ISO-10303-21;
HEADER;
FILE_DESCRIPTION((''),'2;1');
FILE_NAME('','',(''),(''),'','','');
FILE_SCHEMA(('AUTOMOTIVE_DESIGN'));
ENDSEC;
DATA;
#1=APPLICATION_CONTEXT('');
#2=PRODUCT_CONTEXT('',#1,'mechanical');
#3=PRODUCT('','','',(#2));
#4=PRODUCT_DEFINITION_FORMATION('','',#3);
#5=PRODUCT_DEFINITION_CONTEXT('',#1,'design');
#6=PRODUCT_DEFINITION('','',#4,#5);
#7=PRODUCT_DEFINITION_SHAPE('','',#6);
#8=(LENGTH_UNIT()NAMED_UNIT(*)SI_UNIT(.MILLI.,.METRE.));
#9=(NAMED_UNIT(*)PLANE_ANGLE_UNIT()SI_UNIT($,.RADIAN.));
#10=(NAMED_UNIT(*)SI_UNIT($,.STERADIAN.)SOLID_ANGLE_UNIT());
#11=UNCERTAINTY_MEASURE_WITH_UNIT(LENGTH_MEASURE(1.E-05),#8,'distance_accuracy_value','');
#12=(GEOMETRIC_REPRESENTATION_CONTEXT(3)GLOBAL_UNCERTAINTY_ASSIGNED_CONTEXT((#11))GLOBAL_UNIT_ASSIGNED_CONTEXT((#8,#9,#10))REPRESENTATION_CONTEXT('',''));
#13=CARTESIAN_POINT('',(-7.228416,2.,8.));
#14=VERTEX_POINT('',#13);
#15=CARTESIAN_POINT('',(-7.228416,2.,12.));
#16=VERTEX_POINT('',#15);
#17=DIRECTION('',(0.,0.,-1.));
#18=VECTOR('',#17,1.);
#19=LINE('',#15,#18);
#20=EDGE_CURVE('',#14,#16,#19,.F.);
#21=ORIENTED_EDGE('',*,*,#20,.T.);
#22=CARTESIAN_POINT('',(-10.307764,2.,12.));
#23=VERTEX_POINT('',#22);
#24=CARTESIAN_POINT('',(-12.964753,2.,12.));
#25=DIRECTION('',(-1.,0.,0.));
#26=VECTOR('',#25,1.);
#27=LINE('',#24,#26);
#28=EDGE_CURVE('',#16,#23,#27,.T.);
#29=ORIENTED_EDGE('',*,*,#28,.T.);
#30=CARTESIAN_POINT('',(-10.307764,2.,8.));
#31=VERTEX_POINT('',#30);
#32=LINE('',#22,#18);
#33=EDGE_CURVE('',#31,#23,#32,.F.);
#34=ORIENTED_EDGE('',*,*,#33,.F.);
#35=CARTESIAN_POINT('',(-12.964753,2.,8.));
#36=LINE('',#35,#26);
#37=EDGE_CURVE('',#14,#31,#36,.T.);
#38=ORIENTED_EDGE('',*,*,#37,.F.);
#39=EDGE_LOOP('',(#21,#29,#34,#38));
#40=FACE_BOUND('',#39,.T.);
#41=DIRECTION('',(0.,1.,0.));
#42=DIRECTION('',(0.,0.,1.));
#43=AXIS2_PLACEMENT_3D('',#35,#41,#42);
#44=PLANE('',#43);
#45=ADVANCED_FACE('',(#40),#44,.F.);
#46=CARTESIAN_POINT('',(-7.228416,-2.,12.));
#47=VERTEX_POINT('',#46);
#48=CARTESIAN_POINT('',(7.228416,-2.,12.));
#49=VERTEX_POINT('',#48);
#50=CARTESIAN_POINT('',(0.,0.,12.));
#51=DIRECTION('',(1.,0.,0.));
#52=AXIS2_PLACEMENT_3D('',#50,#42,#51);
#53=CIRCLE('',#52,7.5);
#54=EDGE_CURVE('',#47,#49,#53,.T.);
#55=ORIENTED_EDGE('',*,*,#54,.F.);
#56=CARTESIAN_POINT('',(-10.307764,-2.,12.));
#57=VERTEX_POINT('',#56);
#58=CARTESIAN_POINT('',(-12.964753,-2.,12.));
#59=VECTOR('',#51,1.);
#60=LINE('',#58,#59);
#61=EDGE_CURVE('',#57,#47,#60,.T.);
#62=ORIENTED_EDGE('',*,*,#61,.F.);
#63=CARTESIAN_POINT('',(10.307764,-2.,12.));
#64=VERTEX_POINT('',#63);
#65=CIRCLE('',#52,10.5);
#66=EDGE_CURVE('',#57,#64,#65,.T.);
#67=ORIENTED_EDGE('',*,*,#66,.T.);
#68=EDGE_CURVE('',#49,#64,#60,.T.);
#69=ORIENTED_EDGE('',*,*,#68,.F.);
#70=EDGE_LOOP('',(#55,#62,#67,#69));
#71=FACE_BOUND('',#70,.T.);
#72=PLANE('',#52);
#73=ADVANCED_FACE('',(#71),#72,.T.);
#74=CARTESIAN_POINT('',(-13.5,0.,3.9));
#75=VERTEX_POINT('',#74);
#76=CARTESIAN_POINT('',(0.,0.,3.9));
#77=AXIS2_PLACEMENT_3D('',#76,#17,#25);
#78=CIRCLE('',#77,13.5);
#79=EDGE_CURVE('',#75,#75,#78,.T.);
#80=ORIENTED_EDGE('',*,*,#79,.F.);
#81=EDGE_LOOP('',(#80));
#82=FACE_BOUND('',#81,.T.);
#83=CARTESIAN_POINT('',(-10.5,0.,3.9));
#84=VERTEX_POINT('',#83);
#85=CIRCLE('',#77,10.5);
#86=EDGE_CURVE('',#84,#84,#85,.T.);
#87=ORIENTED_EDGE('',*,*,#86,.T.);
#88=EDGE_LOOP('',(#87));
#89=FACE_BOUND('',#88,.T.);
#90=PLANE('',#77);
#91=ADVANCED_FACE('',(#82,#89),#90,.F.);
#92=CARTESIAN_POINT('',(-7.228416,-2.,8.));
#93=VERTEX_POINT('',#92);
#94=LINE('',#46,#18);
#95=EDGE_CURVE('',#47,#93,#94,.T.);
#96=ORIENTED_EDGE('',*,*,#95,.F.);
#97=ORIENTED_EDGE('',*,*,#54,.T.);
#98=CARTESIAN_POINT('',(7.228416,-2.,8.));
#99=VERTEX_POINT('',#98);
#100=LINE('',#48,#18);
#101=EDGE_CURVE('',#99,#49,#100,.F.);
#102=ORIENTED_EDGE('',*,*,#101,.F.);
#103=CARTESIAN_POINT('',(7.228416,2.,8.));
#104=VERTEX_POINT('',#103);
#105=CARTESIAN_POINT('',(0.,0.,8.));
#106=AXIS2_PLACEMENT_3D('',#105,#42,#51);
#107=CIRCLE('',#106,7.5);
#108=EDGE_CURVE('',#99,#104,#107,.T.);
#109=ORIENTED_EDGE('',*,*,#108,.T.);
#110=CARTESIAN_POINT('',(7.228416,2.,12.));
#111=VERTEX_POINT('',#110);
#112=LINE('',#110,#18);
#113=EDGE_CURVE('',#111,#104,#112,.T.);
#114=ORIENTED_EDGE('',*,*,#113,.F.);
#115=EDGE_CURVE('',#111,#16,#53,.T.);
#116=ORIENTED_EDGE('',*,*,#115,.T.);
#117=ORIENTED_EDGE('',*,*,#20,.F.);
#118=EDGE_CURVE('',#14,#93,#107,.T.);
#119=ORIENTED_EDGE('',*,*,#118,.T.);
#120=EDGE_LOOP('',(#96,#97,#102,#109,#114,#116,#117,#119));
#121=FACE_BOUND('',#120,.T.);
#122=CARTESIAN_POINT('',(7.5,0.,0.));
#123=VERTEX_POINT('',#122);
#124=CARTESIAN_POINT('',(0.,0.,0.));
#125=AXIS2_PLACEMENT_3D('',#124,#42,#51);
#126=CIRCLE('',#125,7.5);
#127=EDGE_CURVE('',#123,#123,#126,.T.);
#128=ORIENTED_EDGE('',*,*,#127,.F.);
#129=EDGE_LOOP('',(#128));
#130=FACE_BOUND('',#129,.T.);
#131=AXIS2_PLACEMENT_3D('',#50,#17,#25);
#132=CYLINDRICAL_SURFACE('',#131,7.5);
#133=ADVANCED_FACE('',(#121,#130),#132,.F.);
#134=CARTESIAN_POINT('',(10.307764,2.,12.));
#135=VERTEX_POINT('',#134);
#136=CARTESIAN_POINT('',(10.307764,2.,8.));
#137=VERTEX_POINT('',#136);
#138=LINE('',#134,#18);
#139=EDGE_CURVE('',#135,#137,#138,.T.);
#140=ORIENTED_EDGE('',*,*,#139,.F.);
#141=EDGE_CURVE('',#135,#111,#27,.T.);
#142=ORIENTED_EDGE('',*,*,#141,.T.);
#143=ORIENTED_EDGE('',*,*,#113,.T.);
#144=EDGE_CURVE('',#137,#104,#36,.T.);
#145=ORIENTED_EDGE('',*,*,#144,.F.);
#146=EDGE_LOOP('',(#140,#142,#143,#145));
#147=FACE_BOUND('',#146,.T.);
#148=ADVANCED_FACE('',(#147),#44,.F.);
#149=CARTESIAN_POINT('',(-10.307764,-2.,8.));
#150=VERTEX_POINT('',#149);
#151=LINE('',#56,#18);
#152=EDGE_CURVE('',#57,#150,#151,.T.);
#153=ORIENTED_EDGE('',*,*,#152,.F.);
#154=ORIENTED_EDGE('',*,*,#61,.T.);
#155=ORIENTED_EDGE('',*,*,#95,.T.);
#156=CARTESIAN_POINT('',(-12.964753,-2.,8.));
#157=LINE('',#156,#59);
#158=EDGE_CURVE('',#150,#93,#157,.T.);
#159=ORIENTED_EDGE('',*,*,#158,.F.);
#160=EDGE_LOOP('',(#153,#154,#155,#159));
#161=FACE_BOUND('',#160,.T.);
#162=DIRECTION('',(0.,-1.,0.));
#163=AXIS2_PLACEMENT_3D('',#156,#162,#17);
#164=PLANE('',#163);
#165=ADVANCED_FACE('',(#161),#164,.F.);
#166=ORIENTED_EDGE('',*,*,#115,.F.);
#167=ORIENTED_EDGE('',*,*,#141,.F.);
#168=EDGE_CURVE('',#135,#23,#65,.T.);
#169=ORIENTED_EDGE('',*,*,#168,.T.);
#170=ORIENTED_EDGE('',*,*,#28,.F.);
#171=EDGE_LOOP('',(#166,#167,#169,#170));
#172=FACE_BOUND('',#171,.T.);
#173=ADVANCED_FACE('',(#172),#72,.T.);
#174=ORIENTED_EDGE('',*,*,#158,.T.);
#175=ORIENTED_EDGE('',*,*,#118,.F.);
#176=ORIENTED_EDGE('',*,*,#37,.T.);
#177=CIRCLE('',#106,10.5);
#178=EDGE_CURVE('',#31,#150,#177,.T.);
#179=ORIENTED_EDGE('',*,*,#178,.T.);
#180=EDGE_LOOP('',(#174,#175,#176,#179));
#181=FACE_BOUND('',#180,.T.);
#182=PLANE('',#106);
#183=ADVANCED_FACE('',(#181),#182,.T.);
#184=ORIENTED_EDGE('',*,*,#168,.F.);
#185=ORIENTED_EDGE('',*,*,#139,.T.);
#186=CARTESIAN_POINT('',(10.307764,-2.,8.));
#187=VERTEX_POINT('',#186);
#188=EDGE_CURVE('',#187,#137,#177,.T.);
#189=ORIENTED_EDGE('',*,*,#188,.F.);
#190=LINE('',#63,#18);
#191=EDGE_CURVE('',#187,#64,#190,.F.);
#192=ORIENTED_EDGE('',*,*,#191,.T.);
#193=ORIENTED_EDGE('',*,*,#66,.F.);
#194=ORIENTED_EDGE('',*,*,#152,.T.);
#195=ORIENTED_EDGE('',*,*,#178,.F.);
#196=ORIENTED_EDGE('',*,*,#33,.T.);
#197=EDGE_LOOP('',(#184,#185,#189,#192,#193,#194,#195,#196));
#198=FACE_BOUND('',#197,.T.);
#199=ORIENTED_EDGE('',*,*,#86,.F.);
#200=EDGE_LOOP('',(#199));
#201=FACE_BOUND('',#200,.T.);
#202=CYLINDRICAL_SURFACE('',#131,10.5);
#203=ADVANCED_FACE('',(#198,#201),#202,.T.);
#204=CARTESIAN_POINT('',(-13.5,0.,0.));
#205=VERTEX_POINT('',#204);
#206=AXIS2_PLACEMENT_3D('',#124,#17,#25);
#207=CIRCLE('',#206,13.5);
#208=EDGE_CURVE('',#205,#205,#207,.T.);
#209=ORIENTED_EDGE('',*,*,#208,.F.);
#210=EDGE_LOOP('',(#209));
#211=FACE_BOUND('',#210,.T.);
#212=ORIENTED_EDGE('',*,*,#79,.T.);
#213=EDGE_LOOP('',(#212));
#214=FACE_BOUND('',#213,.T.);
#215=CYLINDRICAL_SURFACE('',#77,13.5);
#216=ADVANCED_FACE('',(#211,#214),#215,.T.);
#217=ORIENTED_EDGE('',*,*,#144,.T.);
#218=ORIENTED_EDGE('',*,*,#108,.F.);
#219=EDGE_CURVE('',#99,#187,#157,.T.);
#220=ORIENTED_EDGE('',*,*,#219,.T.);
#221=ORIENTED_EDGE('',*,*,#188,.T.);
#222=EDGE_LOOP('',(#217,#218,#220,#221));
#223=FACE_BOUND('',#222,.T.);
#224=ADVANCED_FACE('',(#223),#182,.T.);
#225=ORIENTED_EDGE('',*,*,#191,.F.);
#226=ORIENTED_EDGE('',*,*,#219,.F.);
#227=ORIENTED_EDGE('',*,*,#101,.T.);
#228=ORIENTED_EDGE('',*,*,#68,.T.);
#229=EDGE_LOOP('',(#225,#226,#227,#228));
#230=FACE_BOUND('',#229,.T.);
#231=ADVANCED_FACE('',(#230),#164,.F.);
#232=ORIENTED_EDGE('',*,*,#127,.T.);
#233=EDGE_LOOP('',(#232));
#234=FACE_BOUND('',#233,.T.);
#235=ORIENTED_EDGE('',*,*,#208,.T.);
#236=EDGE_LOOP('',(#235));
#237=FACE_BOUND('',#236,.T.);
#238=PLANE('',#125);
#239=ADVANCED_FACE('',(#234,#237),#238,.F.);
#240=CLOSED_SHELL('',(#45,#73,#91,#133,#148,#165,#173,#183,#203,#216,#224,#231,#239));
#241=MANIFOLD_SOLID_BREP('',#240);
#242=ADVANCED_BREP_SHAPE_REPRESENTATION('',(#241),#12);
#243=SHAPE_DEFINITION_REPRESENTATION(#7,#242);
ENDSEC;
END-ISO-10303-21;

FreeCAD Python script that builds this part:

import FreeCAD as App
import Part
import Sketcher
from FreeCAD import Vector
Q = App.Units.Quantity

doc = App.newDocument("Part")
params = doc.addObject("Spreadsheet::Sheet", "Params")
for row, (alias, value) in enumerate([
    ("sketch1_diameter", "21 mm"),
    ("sketch1_diameter2", "15 mm"),
    ("pad1_length", "12 mm"),
    ("sketch2_diameter", "27 mm"),
    ("sketch2_diameter2", "21 mm"),
    ("pad2_length", "3.9 mm"),
    ("sketch3_height", "4 mm"),
    ("pocket1_length", "4 mm"),
], start=1):
    params.set(f"A{row}", alias)
    params.set(f"B{row}", "=" + value)
    params.setAlias(f"B{row}", alias)

body = doc.addObject("PartDesign::Body", "Body")

# Sketch on XY plane
sketch1 = doc.addObject("Sketcher::SketchObject", "Sketch")
body.addObject(sketch1)
sketch1.AttachmentSupport = (doc.XY_Plane, [""])
sketch1.MapMode = "FlatFace"
sketch1.addGeometry([
    Part.Circle(Vector(0, 0, 0), Vector(0, 0, 1), 10.5),
    Part.Circle(Vector(0, 0, 0), Vector(0, 0, 1), 7.5),
], False)
sketch1.addConstraint([
    Sketcher.Constraint("Coincident", 0, 3, -1, 1),
    Sketcher.Constraint("Coincident", 1, 3, -1, 1),
    Sketcher.Constraint("Diameter", 0, Q("21 mm")),
    Sketcher.Constraint("Diameter", 1, Q("15 mm")),
])
sketch1.setExpression("Constraints[2]", "Params.sketch1_diameter")
sketch1.setExpression("Constraints[3]", "Params.sketch1_diameter2")
pad1 = doc.addObject("PartDesign::Pad", "Pad")
body.addObject(pad1)
pad1.Profile = sketch1
pad1.setExpression("Length", "Params.pad1_length")

# Sketch on XY plane
sketch2 = doc.addObject("Sketcher::SketchObject", "Sketch001")
body.addObject(sketch2)
sketch2.AttachmentSupport = (doc.XY_Plane, [""])
sketch2.MapMode = "FlatFace"
sketch2.addGeometry([
    Part.Circle(Vector(0, 0, 0), Vector(0, 0, 1), 13.5),
    Part.Circle(Vector(0, 0, 0), Vector(0, 0, 1), 10.5),
], False)
sketch2.addConstraint([
    Sketcher.Constraint("Coincident", 0, 3, -1, 1),
    Sketcher.Constraint("Coincident", 1, 3, -1, 1),
    Sketcher.Constraint("Diameter", 0, Q("27 mm")),
    Sketcher.Constraint("Diameter", 1, Q("21 mm")),
])
sketch2.setExpression("Constraints[2]", "Params.sketch2_diameter")
sketch2.setExpression("Constraints[3]", "Params.sketch2_diameter2")
pad2 = doc.addObject("PartDesign::Pad", "Pad001")
body.addObject(pad2)
pad2.Profile = sketch2
pad2.setExpression("Length", "Params.pad2_length")

# Sketch on XY plane
sketch3 = doc.addObject("Sketcher::SketchObject", "Sketch002")
body.addObject(sketch3)
sketch3.AttachmentSupport = (doc.XY_Plane, [""])
sketch3.MapMode = "FlatFace"
sketch3.AttachmentOffset = App.Placement(Vector(0, 0, 12), App.Rotation())
sketch3.addGeometry([
    Part.LineSegment(Vector(-12.964753, 2, 0), Vector(-12.964753, -2, 0)),
    Part.LineSegment(Vector(-12.964753, -2, 0), Vector(12.964753, -2, 0)),
    Part.LineSegment(Vector(12.964753, -2, 0), Vector(12.964753, 2, 0)),
    Part.LineSegment(Vector(12.964753, 2, 0), Vector(-12.964753, 2, 0)),
], False)
sketch3.addConstraint([
    Sketcher.Constraint("Coincident", 0, 2, 1, 1),
    Sketcher.Constraint("Coincident", 1, 2, 2, 1),
    Sketcher.Constraint("Coincident", 2, 2, 3, 1),
    Sketcher.Constraint("Coincident", 3, 2, 0, 1),
    Sketcher.Constraint("Vertical", 0),
    Sketcher.Constraint("Horizontal", 1),
    Sketcher.Constraint("Vertical", 2),
    Sketcher.Constraint("Horizontal", 3),
    Sketcher.Constraint("Symmetric", 0, 2, 2, 2, -1, 1),
    Sketcher.Constraint("DistanceY", 0, 2, 0, 1, Q("4 mm")),
    Sketcher.Constraint("DistanceX", 1, 1, 1, 2, Q("25.929505 mm")),
])
sketch3.setExpression("Constraints[9]", "Params.sketch3_height")
pocket1 = doc.addObject("PartDesign::Pocket", "Pocket")
body.addObject(pocket1)
pocket1.Profile = sketch3
pocket1.setExpression("Length", "Params.pocket1_length")

doc.recompute()
